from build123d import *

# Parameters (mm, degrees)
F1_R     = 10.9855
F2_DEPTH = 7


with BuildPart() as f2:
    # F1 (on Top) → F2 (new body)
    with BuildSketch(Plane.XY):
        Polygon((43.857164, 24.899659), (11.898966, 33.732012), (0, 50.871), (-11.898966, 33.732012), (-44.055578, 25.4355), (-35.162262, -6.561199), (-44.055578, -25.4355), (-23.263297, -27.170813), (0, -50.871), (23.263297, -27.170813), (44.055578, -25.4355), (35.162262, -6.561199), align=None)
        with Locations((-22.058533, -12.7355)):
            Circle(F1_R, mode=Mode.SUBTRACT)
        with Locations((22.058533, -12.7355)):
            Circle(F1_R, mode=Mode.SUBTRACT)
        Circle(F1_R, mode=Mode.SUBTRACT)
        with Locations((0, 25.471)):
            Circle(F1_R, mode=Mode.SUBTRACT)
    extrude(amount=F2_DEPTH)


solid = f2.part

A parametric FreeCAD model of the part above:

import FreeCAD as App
import Part
import Sketcher

V = App.Vector

doc = App.newDocument("Part")
body = doc.addObject("PartDesign::Body", "Body")

sketch1 = body.newObject("Sketcher::SketchObject", "Sketch")
sketch1.AttachmentSupport = (doc.getObject("XY_Plane"), [""])
sketch1.MapMode = "FlatFace"
sketch1.addGeometry(Part.LineSegment(V(44, 25, 0), V(12, 34, 0)), False)
sketch1.addGeometry(Part.LineSegment(V(12, 34, 0), V(0, 51, 0)), False)
sketch1.addGeometry(Part.LineSegment(V(0, 51, 0), V(-12, 34, 0)), False)
sketch1.addGeometry(Part.LineSegment(V(-12, 34, 0), V(-44, 25, 0)), False)
sketch1.addGeometry(Part.LineSegment(V(-44, 25, 0), V(-35, -7, 0)), False)
sketch1.addGeometry(Part.LineSegment(V(-35, -7, 0), V(-44, -25, 0)), False)
sketch1.addGeometry(Part.LineSegment(V(-44, -25, 0), V(-23, -27, 0)), False)
sketch1.addGeometry(Part.LineSegment(V(-23, -27, 0), V(0, -51, 0)), False)
sketch1.addGeometry(Part.LineSegment(V(0, -51, 0), V(23, -27, 0)), False)
sketch1.addGeometry(Part.LineSegment(V(23, -27, 0), V(44, -25, 0)), False)
sketch1.addGeometry(Part.LineSegment(V(44, -25, 0), V(35, -7, 0)), False)
sketch1.addGeometry(Part.LineSegment(V(35, -7, 0), V(44, 25, 0)), False)
sketch1.addGeometry(Part.Circle(V(-22, -13, 0), V(0, 0, 1), 11), False)
sketch1.addGeometry(Part.Circle(V(22, -13, 0), V(0, 0, 1), 11), False)
sketch1.addGeometry(Part.Circle(V(0, 0, 0), V(0, 0, 1), 11), False)
sketch1.addGeometry(Part.Circle(V(0, 25, 0), V(0, 0, 1), 11), False)
sketch1.addConstraint(Sketcher.Constraint("Coincident", 0, 2, 1, 1))
sketch1.addConstraint(Sketcher.Constraint("Coincident", 1, 2, 2, 1))
sketch1.addConstraint(Sketcher.Constraint("Coincident", 2, 2, 3, 1))
sketch1.addConstraint(Sketcher.Constraint("Coincident", 3, 2, 4, 1))
sketch1.addConstraint(Sketcher.Constraint("Coincident", 4, 2, 5, 1))
sketch1.addConstraint(Sketcher.Constraint("Coincident", 5, 2, 6, 1))
sketch1.addConstraint(Sketcher.Constraint("Coincident", 6, 2, 7, 1))
sketch1.addConstraint(Sketcher.Constraint("Coincident", 7, 2, 8, 1))
sketch1.addConstraint(Sketcher.Constraint("Coincident", 8, 2, 9, 1))
sketch1.addConstraint(Sketcher.Constraint("Coincident", 9, 2, 10, 1))
sketch1.addConstraint(Sketcher.Constraint("Coincident", 10, 2, 11, 1))
sketch1.addConstraint(Sketcher.Constraint("Coincident", 11, 2, 0, 1))
sketch1.addConstraint(Sketcher.Constraint("Coincident", 14, 3, -1, 1))
sketch1.addConstraint(Sketcher.Constraint("Equal", 12, 13))
sketch1.addConstraint(Sketcher.Constraint("Equal", 13, 14))
sketch1.addConstraint(Sketcher.Constraint("Equal", 14, 15))
sketch1.addConstraint(Sketcher.Constraint("Symmetric", 1, 2, 7, 2, -1, 1))
sketch1.addConstraint(Sketcher.Constraint("Symmetric", 3, 2, 9, 2, -1, 1))
sketch1.addConstraint(Sketcher.Constraint("Symmetric", 12, 3, 13, 3, -2))
sketch1.addConstraint(Sketcher.Constraint("Symmetric", 0, 2, 2, 2, -2))
sketch1.addConstraint(Sketcher.Constraint("Symmetric", 6, 2, 8, 2, -2))
sketch1.addConstraint(Sketcher.Constraint("Symmetric", 5, 2, 9, 2, -2))
sketch1.addConstraint(Sketcher.Constraint("Symmetric", 4, 2, 10, 2, -2))
sketch1.addConstraint(Sketcher.Constraint("PointOnObject", 15, 3, -2))
sketch1.addConstraint(Sketcher.Constraint("PointOnObject", 1, 2, -2))
sketch1.addConstraint(Sketcher.Constraint("Perpendicular", 0, 11))
sketch1.addConstraint(Sketcher.Constraint("Equal", 3, 4))
sketch1.addConstraint(Sketcher.Constraint("Equal", 2, 5))
sketch1.addConstraint(Sketcher.Constraint("Equal", 5, 6))
sketch1.addConstraint(Sketcher.Constraint("Equal", 4, 7))
sketch1.addConstraint(Sketcher.Constraint("Diameter", 12, 21.971))
sketch1.addConstraint(Sketcher.Constraint("DistanceY", 15, 3, 1, 2, 25.4))
sketch1.addConstraint(Sketcher.Constraint("DistanceY", 5, 2, 12, 3, 12.7))
sketch1.addConstraint(Sketcher.Constraint("DistanceY", -1, 1, 15, 3, 25.471))
sketch1.addConstraint(Sketcher.Constraint("DistanceY", 12, 3, 3, 2, 38.171))
sketch1.addConstraint(Sketcher.Constraint("DistanceY", 4, 2, -1, 1, 6.561199))
sketch1.addConstraint(Sketcher.Constraint("DistanceX", 12, 3, 0, 2, 33.957499))
sketch1.addConstraint(Sketcher.Constraint("DistanceX", 10, 2, 11, 2, 8.694902))
sketch1.addConstraint(Sketcher.Constraint("Distance", 0, 33.156249))
sketch1.addConstraint(Sketcher.Constraint("Distance", 1, 20.86457))
pad1 = body.newObject("PartDesign::Pad", "Pad")
pad1.Profile = sketch1
pad1.Length = 7

doc.recompute()
